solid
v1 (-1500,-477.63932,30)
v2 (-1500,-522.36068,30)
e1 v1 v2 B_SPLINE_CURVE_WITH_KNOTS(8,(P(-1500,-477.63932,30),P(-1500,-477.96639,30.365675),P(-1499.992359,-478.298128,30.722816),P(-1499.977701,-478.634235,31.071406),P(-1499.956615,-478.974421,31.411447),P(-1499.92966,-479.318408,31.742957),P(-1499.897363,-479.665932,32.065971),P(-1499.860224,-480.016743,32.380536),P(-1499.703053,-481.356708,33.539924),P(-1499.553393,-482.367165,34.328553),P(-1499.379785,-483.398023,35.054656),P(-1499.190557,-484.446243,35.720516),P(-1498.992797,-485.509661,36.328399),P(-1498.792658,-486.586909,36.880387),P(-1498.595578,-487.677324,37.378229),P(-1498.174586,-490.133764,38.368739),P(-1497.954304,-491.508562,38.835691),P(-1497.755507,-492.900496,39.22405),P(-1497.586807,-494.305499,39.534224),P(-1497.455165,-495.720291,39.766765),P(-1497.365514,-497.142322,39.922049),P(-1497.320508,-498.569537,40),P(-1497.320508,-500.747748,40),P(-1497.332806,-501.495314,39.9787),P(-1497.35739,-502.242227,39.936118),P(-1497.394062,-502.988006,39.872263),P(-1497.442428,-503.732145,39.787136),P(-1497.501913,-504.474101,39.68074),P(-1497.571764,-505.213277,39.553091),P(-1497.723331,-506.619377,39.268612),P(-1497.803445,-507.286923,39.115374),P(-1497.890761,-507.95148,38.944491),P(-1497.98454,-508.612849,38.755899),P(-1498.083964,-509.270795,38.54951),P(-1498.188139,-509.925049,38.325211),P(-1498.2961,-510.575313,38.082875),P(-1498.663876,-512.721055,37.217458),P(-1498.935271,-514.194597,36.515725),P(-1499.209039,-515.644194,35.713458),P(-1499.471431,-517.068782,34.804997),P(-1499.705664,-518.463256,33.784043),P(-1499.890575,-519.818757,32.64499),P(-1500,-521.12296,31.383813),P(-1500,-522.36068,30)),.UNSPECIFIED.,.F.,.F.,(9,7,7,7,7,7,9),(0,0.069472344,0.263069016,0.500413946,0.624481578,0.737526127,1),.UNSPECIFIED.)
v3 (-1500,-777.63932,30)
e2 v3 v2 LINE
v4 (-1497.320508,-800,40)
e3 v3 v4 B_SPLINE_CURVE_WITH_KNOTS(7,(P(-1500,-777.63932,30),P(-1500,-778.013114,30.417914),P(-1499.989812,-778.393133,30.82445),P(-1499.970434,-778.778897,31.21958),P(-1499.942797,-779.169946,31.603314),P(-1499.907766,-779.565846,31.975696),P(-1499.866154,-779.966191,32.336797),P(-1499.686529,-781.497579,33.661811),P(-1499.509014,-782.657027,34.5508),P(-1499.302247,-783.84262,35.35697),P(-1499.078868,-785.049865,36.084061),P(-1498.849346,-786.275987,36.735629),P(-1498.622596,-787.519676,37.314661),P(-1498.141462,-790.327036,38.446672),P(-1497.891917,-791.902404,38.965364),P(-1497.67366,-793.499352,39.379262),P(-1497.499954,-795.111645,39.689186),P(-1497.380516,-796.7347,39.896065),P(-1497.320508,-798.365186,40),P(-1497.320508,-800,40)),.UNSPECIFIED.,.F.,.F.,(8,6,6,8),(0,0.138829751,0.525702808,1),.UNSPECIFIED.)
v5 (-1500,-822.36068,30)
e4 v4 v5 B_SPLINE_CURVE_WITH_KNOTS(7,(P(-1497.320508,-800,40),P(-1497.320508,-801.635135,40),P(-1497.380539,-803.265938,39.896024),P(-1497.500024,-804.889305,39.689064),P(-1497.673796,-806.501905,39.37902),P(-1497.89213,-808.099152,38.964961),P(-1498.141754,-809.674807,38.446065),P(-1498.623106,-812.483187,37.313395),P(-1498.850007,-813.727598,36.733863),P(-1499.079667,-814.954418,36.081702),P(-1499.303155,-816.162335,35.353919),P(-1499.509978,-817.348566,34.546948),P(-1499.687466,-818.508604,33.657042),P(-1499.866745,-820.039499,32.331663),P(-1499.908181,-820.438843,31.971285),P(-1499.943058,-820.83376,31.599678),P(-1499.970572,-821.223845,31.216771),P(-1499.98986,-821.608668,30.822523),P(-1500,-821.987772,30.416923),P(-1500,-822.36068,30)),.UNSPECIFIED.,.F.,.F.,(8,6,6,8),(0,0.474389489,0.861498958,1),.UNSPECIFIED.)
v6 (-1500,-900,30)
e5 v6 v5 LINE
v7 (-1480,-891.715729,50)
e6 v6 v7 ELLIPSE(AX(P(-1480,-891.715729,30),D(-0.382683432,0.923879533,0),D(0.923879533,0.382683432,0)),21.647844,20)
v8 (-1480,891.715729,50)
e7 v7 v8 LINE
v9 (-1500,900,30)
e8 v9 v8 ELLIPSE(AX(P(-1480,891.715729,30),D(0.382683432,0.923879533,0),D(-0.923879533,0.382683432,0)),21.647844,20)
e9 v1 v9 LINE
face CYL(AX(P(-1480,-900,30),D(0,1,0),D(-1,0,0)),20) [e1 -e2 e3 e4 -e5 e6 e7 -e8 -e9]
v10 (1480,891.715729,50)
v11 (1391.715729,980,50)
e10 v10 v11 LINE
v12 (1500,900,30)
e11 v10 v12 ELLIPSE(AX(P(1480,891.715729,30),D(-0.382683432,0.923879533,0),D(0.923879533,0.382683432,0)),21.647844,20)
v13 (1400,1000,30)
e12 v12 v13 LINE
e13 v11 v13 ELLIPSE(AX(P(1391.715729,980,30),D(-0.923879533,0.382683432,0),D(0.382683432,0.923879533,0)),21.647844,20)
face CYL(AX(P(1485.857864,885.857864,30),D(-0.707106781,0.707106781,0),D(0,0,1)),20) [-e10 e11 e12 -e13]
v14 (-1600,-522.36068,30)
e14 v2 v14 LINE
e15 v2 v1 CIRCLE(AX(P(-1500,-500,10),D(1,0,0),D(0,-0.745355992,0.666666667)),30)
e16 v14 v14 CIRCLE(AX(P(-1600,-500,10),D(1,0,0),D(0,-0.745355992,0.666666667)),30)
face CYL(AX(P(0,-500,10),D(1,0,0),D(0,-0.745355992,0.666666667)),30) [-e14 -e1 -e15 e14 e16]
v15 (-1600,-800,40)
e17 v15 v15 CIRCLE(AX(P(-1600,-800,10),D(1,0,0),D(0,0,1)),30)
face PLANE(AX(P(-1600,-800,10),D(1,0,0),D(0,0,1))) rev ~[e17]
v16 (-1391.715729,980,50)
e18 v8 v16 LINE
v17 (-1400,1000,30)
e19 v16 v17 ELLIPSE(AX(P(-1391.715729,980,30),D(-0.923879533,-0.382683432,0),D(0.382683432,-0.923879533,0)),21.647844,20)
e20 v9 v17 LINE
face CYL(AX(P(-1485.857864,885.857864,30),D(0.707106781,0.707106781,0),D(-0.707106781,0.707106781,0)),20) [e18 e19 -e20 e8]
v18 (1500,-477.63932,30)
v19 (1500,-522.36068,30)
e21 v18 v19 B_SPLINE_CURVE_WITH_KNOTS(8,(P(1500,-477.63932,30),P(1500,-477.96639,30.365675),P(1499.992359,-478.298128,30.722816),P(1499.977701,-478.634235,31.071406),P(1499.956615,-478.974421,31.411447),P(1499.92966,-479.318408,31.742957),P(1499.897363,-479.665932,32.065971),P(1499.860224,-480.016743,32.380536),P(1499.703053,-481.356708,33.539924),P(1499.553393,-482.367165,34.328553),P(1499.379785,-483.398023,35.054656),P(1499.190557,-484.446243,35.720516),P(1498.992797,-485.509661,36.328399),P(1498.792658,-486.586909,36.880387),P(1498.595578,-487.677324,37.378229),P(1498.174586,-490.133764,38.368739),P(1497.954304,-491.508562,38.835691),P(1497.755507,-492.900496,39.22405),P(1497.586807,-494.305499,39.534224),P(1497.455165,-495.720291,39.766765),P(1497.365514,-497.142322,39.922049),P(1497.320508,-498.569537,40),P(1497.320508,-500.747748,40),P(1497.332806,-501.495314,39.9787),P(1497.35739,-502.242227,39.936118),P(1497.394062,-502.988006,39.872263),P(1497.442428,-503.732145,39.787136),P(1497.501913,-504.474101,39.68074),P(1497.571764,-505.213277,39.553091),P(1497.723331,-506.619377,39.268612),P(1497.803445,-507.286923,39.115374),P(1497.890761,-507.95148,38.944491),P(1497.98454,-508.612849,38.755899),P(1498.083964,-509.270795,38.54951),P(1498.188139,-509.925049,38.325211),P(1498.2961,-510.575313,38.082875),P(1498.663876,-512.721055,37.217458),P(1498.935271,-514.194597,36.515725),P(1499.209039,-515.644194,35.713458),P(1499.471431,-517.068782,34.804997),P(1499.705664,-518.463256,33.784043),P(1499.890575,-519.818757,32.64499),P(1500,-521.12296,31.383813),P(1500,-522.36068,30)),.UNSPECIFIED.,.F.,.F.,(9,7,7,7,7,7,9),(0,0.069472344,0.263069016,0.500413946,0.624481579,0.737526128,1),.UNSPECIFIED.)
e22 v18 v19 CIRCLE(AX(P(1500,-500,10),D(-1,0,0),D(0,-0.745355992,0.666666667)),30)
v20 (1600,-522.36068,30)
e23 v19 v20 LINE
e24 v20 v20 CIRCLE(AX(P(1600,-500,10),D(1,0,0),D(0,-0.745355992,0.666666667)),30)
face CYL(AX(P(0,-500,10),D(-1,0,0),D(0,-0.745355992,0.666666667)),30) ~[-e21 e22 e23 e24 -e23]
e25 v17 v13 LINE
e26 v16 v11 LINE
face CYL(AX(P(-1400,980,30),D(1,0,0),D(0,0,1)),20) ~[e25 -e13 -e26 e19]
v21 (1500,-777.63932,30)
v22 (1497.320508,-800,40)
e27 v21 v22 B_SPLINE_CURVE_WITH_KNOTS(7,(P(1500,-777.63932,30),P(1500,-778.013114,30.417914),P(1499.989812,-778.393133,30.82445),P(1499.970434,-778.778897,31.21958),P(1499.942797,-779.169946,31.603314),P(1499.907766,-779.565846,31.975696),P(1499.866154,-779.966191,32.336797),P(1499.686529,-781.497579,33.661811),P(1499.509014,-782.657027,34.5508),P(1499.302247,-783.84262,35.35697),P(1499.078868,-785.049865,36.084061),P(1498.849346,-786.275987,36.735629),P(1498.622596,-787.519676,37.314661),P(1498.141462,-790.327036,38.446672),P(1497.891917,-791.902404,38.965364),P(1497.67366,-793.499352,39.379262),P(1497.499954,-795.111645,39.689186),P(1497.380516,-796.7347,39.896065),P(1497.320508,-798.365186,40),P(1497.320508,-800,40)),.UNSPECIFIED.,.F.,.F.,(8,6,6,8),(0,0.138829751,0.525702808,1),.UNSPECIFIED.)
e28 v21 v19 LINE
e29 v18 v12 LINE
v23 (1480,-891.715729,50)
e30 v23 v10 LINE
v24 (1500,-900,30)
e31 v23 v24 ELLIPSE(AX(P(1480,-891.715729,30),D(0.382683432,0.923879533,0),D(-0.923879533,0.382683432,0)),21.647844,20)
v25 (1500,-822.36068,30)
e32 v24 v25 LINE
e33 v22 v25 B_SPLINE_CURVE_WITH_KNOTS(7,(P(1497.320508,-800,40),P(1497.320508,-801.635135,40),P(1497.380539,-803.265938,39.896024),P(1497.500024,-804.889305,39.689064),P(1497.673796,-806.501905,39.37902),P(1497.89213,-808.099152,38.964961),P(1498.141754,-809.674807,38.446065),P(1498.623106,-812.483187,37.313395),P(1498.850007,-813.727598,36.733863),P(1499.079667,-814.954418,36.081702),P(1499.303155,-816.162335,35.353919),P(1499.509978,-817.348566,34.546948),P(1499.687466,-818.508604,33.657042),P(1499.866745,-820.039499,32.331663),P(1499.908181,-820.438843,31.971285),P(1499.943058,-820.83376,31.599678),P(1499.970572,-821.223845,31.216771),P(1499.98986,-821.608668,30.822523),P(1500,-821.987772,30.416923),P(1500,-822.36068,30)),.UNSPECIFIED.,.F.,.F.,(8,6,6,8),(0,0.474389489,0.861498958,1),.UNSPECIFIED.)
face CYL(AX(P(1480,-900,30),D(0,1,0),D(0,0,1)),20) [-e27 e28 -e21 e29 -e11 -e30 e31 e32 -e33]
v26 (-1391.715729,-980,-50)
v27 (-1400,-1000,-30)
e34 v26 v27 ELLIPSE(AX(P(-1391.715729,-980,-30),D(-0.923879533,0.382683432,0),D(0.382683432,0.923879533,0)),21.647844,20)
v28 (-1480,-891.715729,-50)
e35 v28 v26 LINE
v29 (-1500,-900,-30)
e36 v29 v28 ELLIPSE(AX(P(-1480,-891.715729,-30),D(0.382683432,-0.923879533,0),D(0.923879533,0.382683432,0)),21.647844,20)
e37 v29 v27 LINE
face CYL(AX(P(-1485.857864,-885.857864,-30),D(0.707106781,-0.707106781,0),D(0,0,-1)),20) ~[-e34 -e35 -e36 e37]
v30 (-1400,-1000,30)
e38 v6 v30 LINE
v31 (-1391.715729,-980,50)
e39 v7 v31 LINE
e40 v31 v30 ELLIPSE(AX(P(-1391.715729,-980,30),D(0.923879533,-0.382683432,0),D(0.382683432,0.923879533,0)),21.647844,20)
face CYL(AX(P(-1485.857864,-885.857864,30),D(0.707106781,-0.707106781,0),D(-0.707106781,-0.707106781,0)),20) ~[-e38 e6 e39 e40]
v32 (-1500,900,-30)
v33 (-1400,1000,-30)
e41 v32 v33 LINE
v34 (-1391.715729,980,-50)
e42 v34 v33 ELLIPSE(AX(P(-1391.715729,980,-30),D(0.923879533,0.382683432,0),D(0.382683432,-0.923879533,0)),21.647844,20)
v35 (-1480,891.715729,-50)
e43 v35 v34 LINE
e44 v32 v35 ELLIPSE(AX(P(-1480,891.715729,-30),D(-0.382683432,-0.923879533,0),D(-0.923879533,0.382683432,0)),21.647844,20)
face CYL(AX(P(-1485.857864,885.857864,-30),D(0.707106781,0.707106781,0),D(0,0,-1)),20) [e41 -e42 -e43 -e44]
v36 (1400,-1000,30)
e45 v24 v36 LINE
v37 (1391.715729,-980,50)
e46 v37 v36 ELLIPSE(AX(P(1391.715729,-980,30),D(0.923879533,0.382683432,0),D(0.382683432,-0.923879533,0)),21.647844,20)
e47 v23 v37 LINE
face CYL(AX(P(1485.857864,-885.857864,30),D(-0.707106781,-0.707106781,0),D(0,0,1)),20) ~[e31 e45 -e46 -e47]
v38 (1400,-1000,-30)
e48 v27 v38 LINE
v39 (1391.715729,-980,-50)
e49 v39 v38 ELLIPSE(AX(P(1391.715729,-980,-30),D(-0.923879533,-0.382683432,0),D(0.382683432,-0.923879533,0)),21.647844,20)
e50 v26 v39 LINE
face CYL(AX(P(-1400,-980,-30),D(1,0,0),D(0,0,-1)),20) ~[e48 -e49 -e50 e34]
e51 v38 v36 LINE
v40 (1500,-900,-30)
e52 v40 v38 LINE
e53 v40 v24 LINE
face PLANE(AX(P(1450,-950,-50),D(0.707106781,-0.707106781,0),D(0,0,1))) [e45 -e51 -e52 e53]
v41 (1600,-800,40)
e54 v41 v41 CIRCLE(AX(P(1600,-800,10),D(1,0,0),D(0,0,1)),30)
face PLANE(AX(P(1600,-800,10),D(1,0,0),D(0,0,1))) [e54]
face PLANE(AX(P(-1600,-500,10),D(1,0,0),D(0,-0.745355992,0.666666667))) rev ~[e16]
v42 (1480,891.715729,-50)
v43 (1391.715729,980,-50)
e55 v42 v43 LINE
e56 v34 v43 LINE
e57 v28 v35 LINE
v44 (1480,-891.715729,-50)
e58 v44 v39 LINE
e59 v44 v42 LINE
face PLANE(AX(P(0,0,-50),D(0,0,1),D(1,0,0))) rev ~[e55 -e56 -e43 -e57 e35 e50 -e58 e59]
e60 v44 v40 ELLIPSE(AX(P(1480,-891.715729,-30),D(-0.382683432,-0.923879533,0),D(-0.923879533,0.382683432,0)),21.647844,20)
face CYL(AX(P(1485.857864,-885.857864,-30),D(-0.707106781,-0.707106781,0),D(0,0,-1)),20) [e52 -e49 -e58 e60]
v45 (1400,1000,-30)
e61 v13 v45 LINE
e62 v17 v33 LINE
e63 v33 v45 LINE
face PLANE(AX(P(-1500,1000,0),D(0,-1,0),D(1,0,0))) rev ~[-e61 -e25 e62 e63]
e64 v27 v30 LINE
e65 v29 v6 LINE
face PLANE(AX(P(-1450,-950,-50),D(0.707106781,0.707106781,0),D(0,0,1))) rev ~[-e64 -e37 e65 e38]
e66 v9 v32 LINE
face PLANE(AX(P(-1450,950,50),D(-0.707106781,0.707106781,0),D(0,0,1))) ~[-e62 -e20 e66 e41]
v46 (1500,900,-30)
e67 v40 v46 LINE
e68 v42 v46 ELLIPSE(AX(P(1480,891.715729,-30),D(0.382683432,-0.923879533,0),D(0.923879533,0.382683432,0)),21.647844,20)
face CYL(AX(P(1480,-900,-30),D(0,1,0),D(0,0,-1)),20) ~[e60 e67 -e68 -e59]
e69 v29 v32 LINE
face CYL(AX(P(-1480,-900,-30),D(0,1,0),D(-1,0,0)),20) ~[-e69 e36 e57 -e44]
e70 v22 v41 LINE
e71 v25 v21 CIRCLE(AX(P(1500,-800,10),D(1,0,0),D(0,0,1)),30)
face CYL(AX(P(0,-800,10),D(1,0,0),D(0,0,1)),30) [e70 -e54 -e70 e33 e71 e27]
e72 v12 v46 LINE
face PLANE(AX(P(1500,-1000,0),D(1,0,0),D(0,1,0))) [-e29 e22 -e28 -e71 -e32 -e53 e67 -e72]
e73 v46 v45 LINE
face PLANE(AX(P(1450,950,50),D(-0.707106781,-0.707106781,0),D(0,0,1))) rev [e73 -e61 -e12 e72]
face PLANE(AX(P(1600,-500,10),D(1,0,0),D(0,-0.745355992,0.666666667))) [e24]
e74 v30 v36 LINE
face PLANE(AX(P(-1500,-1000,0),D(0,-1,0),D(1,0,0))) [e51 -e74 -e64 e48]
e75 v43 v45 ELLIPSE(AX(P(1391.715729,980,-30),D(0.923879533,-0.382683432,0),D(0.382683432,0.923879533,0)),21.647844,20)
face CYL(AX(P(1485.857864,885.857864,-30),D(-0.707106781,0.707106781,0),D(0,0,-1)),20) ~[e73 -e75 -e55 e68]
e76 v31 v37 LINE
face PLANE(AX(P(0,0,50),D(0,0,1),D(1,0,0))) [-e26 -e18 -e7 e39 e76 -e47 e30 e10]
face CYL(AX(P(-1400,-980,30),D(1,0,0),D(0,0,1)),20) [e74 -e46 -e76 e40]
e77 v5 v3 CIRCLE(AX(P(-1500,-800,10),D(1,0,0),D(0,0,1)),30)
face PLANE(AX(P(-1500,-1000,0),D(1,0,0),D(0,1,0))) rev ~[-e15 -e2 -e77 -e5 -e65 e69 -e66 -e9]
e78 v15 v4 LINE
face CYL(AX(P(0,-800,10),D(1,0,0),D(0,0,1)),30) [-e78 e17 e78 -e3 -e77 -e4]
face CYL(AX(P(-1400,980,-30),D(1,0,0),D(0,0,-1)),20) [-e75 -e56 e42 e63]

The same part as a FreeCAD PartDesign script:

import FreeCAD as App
import Part
import Sketcher

V = App.Vector


def edges_at(feature, points):
    """Names of the edges that pass closest to the given points."""
    edges = feature.Shape.Edges
    near = lambda p: min(range(len(edges)), key=lambda i: edges[i].distToShape(Part.Vertex(*p))[0])
    return sorted({f"Edge{near(p) + 1}" for p in points})


def add_polygon(sketch, points):
    """Adds a closed chain of lines whose ends are joined by coincident constraints."""
    first, n = sketch.GeometryCount, len(points)
    for a, b in zip(points, points[1:] + points[:1]):
        sketch.addGeometry(Part.LineSegment(App.Vector(*a, 0), App.Vector(*b, 0)), False)
    for i in range(n):
        sketch.addConstraint(Sketcher.Constraint("Coincident", first + i, 2, first + (i + 1) % n, 1))

doc = App.newDocument("Part")
body = doc.addObject("PartDesign::Body", "Body")

sketch1 = doc.addObject("Sketcher::SketchObject", "Sketch")
body.addObject(sketch1)
sketch1.AttachmentSupport = (doc.XY_Plane, [""])
sketch1.MapMode = "FlatFace"
add_polygon(sketch1, [(-1500, 1000), (-1500, -1000), (1500, -1000), (1500, 1000)])
sketch1.addConstraint([
    Sketcher.Constraint("Vertical", 0),
    Sketcher.Constraint("Horizontal", 1),
    Sketcher.Constraint("Vertical", 2),
    Sketcher.Constraint("Horizontal", 3),
    Sketcher.Constraint("Symmetric", 0, 2, 2, 2, -1, 1),
    Sketcher.Constraint("DistanceX", 1, 1, 1, 2, 3000.0),
    Sketcher.Constraint("DistanceY", 0, 2, 0, 1, 2000.0),
])
pad1 = doc.addObject("PartDesign::Pad", "Pad")
body.addObject(pad1)
pad1.Profile = sketch1
pad1.Length = 100
pad1.Midplane = True
doc.recompute()

chamfer = doc.addObject("PartDesign::Chamfer", "Chamfer")
body.addObject(chamfer)
chamfer.Base = (pad1, edges_at(pad1, [
    (-1500, 1000, 0),
    (1500, 1000, 0),
    (1500, -1000, 0),
    (-1500, -1000, 0),
]))
chamfer.Size = 100
doc.recompute()

fillet = doc.addObject("PartDesign::Fillet", "Fillet")
body.addObject(fillet)
fillet.Base = (chamfer, edges_at(chamfer, [
    (0, -1000, -50),
    (0, -1000, 50),
    (-1500, 0, -50),
    (0, 1000, -50),
    (1500, 0, -50),
    (-1450, 950, -50),
    (1450, 950, -50),
    (1450, -950, -50),
    (-1450, -950, -50),
    (-1500, 0, 50),
    (1500, 0, 50),
    (0, 1000, 50),
    (-1450, 950, 50),
    (1450, 950, 50),
    (1450, -950, 50),
    (-1450, -950, 50),
]))
fillet.Radius = 20

sketch2 = doc.addObject("Sketcher::SketchObject", "Sketch001")
body.addObject(sketch2)
sketch2.AttachmentSupport = (doc.YZ_Plane, [""])
sketch2.MapMode = "FlatFace"
sketch2.addGeometry([
    Part.Circle(V(-500, 10, 0), V(0, 0, 1), 30),
    Part.Circle(V(-800, 10, 0), V(0, 0, 1), 30),
], False)
sketch2.addConstraint([
    Sketcher.Constraint("Equal", 0, 1),
    Sketcher.Constraint("Horizontal", 0, 3, 1, 3),
    Sketcher.Constraint("Diameter", 0, 60.0),
    Sketcher.Constraint("DistanceX", 0, 3, -1, 1, 500.0),
    Sketcher.Constraint("DistanceY", -1, 1, 0, 3, 10.0),
    Sketcher.Constraint("DistanceX", 1, 3, -1, 1, 800.0),
])
pad2 = doc.addObject("PartDesign::Pad", "Pad001")
body.addObject(pad2)
pad2.Profile = sketch2
pad2.Length = 3200
pad2.Midplane = True

doc.recompute()
